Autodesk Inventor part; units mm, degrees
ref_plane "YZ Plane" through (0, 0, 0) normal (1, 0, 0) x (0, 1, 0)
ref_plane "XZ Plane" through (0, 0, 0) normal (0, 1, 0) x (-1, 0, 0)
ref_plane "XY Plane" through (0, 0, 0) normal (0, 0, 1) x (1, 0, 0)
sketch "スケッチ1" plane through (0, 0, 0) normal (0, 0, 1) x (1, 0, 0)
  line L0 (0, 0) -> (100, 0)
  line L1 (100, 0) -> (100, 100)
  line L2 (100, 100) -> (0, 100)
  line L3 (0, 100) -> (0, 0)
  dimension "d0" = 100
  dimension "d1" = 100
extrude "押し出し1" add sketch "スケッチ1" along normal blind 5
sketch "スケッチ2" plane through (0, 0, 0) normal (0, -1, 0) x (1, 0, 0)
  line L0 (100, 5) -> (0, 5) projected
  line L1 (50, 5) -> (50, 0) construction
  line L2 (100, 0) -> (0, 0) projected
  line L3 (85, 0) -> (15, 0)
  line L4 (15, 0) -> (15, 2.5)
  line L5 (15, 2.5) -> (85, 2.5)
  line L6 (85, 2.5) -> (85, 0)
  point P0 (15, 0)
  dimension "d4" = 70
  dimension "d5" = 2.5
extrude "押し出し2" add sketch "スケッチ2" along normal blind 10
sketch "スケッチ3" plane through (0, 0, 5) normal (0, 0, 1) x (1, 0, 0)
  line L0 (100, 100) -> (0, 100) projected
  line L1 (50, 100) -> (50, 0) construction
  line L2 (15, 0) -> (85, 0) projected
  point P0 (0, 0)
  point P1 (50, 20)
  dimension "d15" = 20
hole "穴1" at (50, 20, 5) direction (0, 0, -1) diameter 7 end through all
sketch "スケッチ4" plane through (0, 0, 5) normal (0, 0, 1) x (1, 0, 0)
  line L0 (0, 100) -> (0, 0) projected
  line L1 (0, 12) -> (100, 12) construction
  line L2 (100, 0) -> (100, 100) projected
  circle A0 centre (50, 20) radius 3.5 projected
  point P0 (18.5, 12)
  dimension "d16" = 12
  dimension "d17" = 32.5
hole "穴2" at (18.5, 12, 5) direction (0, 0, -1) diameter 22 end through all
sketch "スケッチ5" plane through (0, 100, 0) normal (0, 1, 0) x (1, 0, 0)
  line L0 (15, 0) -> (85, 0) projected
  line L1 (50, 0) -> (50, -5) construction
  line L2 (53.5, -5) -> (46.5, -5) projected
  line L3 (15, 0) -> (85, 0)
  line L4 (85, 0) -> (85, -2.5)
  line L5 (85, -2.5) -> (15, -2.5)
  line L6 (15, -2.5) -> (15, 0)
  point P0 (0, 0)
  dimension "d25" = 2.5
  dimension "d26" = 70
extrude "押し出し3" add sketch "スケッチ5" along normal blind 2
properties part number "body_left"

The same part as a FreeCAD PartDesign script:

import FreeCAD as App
import Part
import Sketcher

V = App.Vector
Q = App.Units.Quantity


def add_polygon(sketch, points):
    """Adds a closed chain of lines whose ends are joined by coincident constraints."""
    first, n = sketch.GeometryCount, len(points)
    for a, b in zip(points, points[1:] + points[:1]):
        sketch.addGeometry(Part.LineSegment(App.Vector(*a, 0), App.Vector(*b, 0)), False)
    for i in range(n):
        sketch.addConstraint(Sketcher.Constraint("Coincident", first + i, 2, first + (i + 1) % n, 1))

doc = App.newDocument("Part")
body = doc.addObject("PartDesign::Body", "Body")

# Sketch on XY plane
sketch1 = doc.addObject("Sketcher::SketchObject", "Sketch")
body.addObject(sketch1)
sketch1.AttachmentSupport = (doc.XY_Plane, [""])
sketch1.MapMode = "FlatFace"
add_polygon(sketch1, [(0, 100), (0, 0), (100, 0), (100, 100)])  # lines 0-3
sketch1.addConstraint(Sketcher.Constraint("Vertical", 0))
sketch1.addConstraint(Sketcher.Constraint("Horizontal", 1))
sketch1.addConstraint(Sketcher.Constraint("Vertical", 2))
sketch1.addConstraint(Sketcher.Constraint("Horizontal", 3))
sketch1.addConstraint(Sketcher.Constraint("Coincident", 0, 2, -1, 1))
sketch1.addConstraint(Sketcher.Constraint("Equal", 3, 0))
sketch1.addConstraint(Sketcher.Constraint("DistanceX", 1, 1, 1, 2, Q("100 mm")))
pad1 = doc.addObject("PartDesign::Pad", "Pad")
body.addObject(pad1)
pad1.Profile = sketch1
pad1.Length = 5

# Sketch on XZ plane
sketch2 = doc.addObject("Sketcher::SketchObject", "Sketch001")
body.addObject(sketch2)
sketch2.AttachmentSupport = (doc.XZ_Plane, [""])
sketch2.MapMode = "FlatFace"
add_polygon(sketch2, [(15, 0), (85, 0), (85, 2.5), (15, 2.5)])  # lines 0-3
sketch2.addConstraint(Sketcher.Constraint("Horizontal", 0))
sketch2.addConstraint(Sketcher.Constraint("Vertical", 1))
sketch2.addConstraint(Sketcher.Constraint("Horizontal", 2))
sketch2.addConstraint(Sketcher.Constraint("Vertical", 3))
sketch2.addConstraint(Sketcher.Constraint("PointOnObject", 0, 2, -1))
sketch2.addConstraint(Sketcher.Constraint("DistanceX", 0, 1, 0, 2, Q("70 mm")))
sketch2.addConstraint(Sketcher.Constraint("DistanceY", 1, 1, 1, 2, Q("2.5 mm")))
sketch2.addConstraint(Sketcher.Constraint("DistanceX", -1, 1, 0, 2, Q("85 mm")))
pad2 = doc.addObject("PartDesign::Pad", "Pad001")
body.addObject(pad2)
pad2.Profile = sketch2
pad2.Length = 10

# Sketch on XY plane
sketch3 = doc.addObject("Sketcher::SketchObject", "Sketch002")
body.addObject(sketch3)
sketch3.AttachmentSupport = (doc.XY_Plane, [""])
sketch3.MapMode = "FlatFace"
sketch3.AttachmentOffset = App.Placement(V(0, 0, 5), App.Rotation())
sketch3.addGeometry(Part.Circle(V(50, 20, 0), V(0, 0, 1), 3.5), False)
sketch3.addConstraint(Sketcher.Constraint("Diameter", 0, Q("7 mm")))
sketch3.addConstraint(Sketcher.Constraint("DistanceX", -1, 1, 0, 3, Q("50 mm")))
sketch3.addConstraint(Sketcher.Constraint("DistanceY", -1, 1, 0, 3, Q("20 mm")))
doc.recompute()
hole = doc.addObject("PartDesign::Hole", "Hole")
body.addObject(hole)
hole.Profile = sketch3
hole.ThreadType = "None"
hole.Diameter = 7
hole.DepthType = "ThroughAll"

# Sketch on XY plane
sketch4 = doc.addObject("Sketcher::SketchObject", "Sketch003")
body.addObject(sketch4)
sketch4.AttachmentSupport = (doc.XY_Plane, [""])
sketch4.MapMode = "FlatFace"
sketch4.AttachmentOffset = App.Placement(V(0, 0, 5), App.Rotation())
sketch4.addGeometry(Part.Circle(V(18, 12, 0), V(0, 0, 1), 11), False)
sketch4.addConstraint(Sketcher.Constraint("Diameter", 0, Q("22 mm")))
sketch4.addConstraint(Sketcher.Constraint("DistanceY", -1, 1, 0, 3, Q("12 mm")))
sketch4.addConstraint(Sketcher.Constraint("DistanceX", -1, 1, 0, 3, Q("18.5 mm")))
doc.recompute()
hole2 = doc.addObject("PartDesign::Hole", "Hole001")
body.addObject(hole2)
hole2.Profile = sketch4
hole2.ThreadType = "None"
hole2.Diameter = 22
hole2.DepthType = "ThroughAll"

# Sketch on XZ plane
sketch5 = doc.addObject("Sketcher::SketchObject", "Sketch004")
body.addObject(sketch5)
sketch5.AttachmentSupport = (doc.XZ_Plane, [""])
sketch5.MapMode = "FlatFace"
sketch5.AttachmentOffset = App.Placement(V(0, 0, -100), App.Rotation())
add_polygon(sketch5, [(85, 0), (15, 0), (15, 2.5), (85, 2.5)])  # lines 0-3
sketch5.addConstraint(Sketcher.Constraint("Horizontal", 0))
sketch5.addConstraint(Sketcher.Constraint("Vertical", 1))
sketch5.addConstraint(Sketcher.Constraint("Horizontal", 2))
sketch5.addConstraint(Sketcher.Constraint("Vertical", 3))
sketch5.addConstraint(Sketcher.Constraint("PointOnObject", 0, 2, -1))
sketch5.addConstraint(Sketcher.Constraint("DistanceX", 0, 2, 0, 1, Q("70 mm")))
sketch5.addConstraint(Sketcher.Constraint("DistanceY", 1, 1, 1, 2, Q("2.5 mm")))
sketch5.addConstraint(Sketcher.Constraint("DistanceX", -1, 1, 0, 2, Q("15 mm")))
pad3 = doc.addObject("PartDesign::Pad", "Pad002")
body.addObject(pad3)
pad3.Profile = sketch5
pad3.Length = 2
pad3.Reversed = True

doc.recompute()
